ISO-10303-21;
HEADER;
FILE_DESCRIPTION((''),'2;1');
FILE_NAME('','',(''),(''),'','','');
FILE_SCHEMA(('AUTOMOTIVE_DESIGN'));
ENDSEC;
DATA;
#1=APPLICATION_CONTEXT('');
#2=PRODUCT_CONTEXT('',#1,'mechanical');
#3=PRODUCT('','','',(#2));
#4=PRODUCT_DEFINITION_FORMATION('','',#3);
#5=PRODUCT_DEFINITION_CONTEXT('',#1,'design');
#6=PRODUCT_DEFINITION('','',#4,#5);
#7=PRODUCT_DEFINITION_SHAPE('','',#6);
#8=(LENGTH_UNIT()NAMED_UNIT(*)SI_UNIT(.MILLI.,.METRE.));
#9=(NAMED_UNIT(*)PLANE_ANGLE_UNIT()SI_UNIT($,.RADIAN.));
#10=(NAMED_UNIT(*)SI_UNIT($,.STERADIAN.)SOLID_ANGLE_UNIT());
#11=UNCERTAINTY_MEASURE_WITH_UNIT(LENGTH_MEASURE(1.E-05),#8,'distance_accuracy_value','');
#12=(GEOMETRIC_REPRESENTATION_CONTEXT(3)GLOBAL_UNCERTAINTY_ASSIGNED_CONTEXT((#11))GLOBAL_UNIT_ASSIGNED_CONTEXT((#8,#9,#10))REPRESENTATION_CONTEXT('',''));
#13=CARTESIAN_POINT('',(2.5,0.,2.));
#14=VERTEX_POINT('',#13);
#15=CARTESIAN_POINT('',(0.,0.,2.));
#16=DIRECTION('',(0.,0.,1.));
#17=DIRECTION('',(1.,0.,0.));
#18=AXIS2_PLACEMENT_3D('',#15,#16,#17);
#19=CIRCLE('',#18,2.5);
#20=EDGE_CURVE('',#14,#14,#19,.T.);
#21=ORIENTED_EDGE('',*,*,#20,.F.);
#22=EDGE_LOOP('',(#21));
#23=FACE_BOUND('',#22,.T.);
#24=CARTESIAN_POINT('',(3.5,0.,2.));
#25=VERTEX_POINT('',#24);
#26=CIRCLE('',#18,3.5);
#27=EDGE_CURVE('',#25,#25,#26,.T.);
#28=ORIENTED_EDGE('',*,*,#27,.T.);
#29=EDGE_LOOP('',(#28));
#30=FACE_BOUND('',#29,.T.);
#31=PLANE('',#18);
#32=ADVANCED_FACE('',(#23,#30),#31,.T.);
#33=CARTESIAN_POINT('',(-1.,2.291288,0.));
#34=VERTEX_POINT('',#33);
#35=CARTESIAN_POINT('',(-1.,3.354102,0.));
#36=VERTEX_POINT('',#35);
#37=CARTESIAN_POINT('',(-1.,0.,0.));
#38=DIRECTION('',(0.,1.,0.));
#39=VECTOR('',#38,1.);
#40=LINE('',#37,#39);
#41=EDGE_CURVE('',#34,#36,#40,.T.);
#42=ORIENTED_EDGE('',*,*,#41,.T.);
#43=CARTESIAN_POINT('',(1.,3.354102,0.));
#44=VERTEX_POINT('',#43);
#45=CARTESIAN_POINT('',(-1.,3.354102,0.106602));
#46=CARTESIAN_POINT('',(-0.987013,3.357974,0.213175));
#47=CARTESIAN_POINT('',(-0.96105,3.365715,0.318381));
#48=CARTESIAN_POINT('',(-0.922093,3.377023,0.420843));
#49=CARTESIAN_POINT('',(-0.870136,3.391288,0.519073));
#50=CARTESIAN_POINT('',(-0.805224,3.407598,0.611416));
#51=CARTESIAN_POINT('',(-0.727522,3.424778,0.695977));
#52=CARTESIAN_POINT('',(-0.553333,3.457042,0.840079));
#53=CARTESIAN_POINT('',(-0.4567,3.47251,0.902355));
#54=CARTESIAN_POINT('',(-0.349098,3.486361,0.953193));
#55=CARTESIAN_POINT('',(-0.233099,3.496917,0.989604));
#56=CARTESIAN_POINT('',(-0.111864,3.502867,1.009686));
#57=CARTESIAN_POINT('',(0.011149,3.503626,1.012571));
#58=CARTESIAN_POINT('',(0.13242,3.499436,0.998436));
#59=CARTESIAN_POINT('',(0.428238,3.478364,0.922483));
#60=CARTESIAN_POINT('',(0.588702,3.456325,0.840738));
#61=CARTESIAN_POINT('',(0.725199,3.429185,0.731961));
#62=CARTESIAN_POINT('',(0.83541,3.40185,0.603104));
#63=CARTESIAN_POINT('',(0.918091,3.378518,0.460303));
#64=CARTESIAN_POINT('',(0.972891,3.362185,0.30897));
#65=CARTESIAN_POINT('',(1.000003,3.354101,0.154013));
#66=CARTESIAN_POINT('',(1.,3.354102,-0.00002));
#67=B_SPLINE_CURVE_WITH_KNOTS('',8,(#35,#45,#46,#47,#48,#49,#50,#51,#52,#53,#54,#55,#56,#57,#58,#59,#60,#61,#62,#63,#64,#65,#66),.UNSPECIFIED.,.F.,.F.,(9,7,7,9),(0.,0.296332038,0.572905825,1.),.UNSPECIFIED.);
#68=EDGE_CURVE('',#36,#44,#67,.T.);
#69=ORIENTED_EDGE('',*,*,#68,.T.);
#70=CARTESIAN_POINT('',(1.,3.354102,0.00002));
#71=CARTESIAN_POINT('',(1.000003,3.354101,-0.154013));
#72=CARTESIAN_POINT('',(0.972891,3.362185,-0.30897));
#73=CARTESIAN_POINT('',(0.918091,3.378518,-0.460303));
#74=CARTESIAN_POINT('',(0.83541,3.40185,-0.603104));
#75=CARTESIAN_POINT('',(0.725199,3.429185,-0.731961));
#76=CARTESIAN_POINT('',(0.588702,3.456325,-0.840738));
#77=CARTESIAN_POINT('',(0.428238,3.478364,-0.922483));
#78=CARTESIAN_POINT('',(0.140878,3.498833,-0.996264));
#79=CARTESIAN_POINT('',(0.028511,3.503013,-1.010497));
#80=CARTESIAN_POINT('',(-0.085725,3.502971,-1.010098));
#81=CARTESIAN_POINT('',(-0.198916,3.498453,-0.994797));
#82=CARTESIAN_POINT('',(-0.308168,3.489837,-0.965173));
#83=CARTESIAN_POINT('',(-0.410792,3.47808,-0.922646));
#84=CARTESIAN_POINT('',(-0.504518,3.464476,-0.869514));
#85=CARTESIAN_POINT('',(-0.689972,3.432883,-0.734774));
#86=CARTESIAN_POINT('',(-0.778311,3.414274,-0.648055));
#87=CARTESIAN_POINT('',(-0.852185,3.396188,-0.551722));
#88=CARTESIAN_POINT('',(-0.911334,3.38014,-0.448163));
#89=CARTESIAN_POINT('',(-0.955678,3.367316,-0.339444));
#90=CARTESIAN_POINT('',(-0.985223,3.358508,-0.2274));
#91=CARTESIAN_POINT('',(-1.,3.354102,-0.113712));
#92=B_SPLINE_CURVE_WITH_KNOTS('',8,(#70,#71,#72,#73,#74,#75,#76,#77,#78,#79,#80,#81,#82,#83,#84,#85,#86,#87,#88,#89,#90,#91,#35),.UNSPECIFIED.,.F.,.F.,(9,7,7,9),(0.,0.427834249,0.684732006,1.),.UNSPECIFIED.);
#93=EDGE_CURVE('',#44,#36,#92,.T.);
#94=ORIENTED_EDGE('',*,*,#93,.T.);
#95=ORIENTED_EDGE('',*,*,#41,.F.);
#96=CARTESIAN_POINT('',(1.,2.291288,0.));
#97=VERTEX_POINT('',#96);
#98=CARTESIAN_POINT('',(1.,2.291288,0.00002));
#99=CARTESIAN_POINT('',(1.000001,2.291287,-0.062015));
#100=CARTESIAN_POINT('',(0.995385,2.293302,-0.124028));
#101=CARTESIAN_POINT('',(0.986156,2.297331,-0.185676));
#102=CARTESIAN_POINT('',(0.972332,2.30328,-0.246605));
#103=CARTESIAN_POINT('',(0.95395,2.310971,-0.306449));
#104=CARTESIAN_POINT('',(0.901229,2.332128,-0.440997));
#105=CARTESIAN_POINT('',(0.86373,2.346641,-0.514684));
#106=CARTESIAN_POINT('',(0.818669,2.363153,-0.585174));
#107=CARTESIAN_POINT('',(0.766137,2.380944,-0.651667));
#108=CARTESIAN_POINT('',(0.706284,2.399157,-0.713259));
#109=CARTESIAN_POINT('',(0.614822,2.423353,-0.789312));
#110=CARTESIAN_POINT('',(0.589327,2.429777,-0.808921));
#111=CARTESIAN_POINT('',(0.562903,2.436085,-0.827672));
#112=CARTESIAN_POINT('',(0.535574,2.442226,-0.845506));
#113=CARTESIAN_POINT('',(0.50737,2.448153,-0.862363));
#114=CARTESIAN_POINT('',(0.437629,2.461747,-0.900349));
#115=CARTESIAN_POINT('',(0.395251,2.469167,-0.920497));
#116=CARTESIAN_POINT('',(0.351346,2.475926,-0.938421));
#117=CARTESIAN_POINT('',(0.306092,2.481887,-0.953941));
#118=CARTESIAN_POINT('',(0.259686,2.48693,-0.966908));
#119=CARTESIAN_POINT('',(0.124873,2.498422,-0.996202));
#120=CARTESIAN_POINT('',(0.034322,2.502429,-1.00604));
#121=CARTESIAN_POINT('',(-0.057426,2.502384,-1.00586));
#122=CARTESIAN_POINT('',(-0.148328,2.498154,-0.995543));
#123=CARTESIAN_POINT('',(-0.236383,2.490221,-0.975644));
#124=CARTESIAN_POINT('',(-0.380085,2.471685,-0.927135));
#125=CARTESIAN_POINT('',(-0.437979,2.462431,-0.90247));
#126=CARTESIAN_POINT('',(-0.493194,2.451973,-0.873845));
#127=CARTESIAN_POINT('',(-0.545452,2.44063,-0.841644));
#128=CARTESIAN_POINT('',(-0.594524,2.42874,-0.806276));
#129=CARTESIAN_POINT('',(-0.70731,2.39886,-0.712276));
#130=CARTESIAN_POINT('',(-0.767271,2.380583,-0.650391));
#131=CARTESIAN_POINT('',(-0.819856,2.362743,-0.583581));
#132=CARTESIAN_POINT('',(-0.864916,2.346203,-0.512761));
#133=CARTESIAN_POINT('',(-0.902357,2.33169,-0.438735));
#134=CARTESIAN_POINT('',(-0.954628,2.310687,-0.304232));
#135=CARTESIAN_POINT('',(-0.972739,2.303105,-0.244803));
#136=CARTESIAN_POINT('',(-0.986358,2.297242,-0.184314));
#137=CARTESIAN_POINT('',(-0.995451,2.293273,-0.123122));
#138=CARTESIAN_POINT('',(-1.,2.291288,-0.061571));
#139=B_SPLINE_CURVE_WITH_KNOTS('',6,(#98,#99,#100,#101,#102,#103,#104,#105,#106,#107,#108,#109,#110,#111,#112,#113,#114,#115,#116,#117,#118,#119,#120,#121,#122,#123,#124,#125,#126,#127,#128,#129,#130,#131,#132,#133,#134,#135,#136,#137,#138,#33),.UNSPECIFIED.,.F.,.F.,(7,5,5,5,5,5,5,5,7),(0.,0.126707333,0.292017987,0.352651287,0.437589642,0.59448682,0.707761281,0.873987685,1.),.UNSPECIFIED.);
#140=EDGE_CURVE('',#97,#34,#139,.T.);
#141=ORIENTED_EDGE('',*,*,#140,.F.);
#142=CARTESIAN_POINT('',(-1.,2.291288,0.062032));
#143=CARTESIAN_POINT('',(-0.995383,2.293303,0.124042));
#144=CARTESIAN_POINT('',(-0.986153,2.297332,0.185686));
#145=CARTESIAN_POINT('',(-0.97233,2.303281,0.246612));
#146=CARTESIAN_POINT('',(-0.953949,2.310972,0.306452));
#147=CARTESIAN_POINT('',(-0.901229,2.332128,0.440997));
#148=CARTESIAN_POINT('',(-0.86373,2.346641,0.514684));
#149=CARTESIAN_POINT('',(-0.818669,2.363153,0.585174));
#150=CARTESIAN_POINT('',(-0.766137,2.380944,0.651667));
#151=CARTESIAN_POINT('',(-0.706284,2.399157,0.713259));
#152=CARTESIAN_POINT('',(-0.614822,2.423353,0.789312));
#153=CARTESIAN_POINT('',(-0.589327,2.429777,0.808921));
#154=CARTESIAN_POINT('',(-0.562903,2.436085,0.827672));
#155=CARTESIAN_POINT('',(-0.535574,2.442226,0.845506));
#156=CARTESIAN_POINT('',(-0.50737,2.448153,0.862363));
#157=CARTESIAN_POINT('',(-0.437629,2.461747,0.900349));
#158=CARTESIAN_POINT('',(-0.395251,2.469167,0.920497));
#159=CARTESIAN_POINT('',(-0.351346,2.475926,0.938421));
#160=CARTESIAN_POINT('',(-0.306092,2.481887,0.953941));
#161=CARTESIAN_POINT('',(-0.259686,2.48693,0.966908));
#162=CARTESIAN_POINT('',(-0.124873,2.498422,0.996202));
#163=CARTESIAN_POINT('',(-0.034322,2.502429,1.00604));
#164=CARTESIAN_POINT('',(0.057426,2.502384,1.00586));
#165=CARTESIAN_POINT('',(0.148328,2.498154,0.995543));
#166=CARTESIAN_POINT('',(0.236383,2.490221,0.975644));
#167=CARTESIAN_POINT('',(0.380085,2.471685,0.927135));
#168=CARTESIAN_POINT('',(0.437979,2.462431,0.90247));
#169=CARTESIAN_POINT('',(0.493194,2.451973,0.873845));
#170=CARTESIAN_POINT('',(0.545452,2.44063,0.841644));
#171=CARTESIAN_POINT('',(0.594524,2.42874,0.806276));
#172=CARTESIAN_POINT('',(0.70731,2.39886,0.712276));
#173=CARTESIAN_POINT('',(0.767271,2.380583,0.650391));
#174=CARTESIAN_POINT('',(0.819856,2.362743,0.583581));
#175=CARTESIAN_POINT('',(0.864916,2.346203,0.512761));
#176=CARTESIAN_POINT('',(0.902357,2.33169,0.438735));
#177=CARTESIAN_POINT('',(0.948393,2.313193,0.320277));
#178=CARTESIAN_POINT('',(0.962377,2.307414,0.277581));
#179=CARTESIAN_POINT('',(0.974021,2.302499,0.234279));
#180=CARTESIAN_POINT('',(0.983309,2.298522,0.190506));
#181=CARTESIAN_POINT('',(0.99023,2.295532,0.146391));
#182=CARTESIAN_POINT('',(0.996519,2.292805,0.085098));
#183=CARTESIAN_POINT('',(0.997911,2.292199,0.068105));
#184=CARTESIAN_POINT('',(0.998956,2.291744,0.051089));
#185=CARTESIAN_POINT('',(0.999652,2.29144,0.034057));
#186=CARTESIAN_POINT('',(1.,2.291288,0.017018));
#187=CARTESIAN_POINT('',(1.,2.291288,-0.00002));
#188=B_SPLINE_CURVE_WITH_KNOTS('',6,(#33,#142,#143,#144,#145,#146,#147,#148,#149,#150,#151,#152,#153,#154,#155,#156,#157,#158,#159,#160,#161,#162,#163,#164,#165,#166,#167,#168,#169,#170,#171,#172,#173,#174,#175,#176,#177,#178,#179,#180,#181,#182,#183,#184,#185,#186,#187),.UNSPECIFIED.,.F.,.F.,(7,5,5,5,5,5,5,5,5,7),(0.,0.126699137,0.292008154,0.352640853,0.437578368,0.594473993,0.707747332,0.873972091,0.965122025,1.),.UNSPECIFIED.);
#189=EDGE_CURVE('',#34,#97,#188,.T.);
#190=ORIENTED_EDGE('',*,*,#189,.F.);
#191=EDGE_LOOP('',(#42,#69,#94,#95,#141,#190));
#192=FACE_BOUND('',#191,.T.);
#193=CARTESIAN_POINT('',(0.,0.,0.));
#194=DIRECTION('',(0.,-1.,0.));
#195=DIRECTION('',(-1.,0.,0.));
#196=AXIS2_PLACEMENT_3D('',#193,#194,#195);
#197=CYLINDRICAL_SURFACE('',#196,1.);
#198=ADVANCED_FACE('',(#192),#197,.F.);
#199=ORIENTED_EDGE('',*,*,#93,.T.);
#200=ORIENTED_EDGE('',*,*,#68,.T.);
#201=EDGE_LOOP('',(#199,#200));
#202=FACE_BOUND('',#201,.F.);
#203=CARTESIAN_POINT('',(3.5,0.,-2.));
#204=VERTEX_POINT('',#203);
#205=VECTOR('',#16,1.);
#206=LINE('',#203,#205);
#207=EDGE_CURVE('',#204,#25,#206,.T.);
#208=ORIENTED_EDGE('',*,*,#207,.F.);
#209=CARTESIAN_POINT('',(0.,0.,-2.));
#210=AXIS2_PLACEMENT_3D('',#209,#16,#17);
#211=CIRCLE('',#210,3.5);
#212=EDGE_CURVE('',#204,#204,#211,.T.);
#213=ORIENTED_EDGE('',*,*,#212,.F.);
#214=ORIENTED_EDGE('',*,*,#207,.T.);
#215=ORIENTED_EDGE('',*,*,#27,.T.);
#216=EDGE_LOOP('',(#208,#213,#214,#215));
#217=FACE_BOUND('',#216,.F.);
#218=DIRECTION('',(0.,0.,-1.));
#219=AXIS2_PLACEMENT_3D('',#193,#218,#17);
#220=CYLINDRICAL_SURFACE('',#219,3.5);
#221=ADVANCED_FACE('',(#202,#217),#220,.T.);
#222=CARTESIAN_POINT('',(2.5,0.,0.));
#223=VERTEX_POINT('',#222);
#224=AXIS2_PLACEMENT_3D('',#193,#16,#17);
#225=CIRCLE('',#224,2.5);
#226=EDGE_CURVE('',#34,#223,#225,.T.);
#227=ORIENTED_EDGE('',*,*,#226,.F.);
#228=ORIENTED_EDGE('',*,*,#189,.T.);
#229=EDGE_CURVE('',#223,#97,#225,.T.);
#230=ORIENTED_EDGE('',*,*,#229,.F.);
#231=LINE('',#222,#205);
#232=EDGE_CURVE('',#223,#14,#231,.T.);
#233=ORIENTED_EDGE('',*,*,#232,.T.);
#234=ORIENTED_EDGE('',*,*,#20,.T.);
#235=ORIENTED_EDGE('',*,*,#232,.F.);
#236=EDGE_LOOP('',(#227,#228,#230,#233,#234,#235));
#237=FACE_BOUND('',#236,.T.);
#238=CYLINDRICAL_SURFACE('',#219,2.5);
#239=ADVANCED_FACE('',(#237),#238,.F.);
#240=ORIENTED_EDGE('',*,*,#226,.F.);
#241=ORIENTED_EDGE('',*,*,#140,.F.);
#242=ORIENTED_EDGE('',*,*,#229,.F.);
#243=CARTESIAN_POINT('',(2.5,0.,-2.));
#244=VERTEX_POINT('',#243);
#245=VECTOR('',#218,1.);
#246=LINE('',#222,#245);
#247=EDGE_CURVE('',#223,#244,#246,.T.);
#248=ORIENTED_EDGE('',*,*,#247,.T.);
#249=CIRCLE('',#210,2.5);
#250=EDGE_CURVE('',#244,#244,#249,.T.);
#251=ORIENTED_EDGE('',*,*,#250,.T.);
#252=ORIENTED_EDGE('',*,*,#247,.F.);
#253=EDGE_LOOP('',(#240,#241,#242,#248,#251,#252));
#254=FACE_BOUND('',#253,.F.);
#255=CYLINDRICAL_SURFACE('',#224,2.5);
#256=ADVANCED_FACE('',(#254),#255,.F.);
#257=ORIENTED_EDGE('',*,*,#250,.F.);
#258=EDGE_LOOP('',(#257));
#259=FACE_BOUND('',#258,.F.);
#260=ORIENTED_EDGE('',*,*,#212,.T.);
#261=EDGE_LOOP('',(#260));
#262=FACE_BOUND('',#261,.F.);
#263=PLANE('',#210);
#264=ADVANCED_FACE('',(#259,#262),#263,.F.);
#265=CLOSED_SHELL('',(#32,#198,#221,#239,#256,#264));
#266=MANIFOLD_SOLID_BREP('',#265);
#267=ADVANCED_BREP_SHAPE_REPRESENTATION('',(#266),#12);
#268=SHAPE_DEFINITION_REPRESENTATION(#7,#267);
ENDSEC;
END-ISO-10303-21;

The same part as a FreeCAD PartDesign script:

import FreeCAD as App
import Part
import Sketcher

doc = App.newDocument("Part")
body = doc.addObject("PartDesign::Body", "Body")

sketch1 = doc.addObject("Sketcher::SketchObject", "Sketch")
body.addObject(sketch1)
sketch1.AttachmentSupport = (doc.XY_Plane, [""])
sketch1.MapMode = "FlatFace"
sketch1.addGeometry([
    Part.Circle(App.Vector(0, 0, 0), App.Vector(0, 0, 1), 3.5),
    Part.Circle(App.Vector(0, 0, 0), App.Vector(0, 0, 1), 2.5),
], False)
sketch1.addConstraint([
    Sketcher.Constraint("Coincident", 0, 3, -1, 1),
    Sketcher.Constraint("Coincident", 1, 3, -1, 1),
    Sketcher.Constraint("Diameter", 0, 7.0),
    Sketcher.Constraint("Diameter", 1, 5.0),
])
pad1 = doc.addObject("PartDesign::Pad", "Pad")
body.addObject(pad1)
pad1.Profile = sketch1
pad1.Length = 4
pad1.Midplane = True

sketch2 = doc.addObject("Sketcher::SketchObject", "Sketch001")
body.addObject(sketch2)
sketch2.AttachmentSupport = (doc.XZ_Plane, [""])
sketch2.MapMode = "FlatFace"
sketch2.addGeometry(Part.Circle(App.Vector(0, 0, 0), App.Vector(0, 0, 1), 1), False)
sketch2.addConstraint([
    Sketcher.Constraint("Coincident", 0, 3, -1, 1),
    Sketcher.Constraint("Diameter", 0, 2.0),
])
pocket1 = doc.addObject("PartDesign::Pocket", "Pocket")
body.addObject(pocket1)
pocket1.Profile = sketch2
pocket1.Type = "ThroughAll"

doc.recompute()
